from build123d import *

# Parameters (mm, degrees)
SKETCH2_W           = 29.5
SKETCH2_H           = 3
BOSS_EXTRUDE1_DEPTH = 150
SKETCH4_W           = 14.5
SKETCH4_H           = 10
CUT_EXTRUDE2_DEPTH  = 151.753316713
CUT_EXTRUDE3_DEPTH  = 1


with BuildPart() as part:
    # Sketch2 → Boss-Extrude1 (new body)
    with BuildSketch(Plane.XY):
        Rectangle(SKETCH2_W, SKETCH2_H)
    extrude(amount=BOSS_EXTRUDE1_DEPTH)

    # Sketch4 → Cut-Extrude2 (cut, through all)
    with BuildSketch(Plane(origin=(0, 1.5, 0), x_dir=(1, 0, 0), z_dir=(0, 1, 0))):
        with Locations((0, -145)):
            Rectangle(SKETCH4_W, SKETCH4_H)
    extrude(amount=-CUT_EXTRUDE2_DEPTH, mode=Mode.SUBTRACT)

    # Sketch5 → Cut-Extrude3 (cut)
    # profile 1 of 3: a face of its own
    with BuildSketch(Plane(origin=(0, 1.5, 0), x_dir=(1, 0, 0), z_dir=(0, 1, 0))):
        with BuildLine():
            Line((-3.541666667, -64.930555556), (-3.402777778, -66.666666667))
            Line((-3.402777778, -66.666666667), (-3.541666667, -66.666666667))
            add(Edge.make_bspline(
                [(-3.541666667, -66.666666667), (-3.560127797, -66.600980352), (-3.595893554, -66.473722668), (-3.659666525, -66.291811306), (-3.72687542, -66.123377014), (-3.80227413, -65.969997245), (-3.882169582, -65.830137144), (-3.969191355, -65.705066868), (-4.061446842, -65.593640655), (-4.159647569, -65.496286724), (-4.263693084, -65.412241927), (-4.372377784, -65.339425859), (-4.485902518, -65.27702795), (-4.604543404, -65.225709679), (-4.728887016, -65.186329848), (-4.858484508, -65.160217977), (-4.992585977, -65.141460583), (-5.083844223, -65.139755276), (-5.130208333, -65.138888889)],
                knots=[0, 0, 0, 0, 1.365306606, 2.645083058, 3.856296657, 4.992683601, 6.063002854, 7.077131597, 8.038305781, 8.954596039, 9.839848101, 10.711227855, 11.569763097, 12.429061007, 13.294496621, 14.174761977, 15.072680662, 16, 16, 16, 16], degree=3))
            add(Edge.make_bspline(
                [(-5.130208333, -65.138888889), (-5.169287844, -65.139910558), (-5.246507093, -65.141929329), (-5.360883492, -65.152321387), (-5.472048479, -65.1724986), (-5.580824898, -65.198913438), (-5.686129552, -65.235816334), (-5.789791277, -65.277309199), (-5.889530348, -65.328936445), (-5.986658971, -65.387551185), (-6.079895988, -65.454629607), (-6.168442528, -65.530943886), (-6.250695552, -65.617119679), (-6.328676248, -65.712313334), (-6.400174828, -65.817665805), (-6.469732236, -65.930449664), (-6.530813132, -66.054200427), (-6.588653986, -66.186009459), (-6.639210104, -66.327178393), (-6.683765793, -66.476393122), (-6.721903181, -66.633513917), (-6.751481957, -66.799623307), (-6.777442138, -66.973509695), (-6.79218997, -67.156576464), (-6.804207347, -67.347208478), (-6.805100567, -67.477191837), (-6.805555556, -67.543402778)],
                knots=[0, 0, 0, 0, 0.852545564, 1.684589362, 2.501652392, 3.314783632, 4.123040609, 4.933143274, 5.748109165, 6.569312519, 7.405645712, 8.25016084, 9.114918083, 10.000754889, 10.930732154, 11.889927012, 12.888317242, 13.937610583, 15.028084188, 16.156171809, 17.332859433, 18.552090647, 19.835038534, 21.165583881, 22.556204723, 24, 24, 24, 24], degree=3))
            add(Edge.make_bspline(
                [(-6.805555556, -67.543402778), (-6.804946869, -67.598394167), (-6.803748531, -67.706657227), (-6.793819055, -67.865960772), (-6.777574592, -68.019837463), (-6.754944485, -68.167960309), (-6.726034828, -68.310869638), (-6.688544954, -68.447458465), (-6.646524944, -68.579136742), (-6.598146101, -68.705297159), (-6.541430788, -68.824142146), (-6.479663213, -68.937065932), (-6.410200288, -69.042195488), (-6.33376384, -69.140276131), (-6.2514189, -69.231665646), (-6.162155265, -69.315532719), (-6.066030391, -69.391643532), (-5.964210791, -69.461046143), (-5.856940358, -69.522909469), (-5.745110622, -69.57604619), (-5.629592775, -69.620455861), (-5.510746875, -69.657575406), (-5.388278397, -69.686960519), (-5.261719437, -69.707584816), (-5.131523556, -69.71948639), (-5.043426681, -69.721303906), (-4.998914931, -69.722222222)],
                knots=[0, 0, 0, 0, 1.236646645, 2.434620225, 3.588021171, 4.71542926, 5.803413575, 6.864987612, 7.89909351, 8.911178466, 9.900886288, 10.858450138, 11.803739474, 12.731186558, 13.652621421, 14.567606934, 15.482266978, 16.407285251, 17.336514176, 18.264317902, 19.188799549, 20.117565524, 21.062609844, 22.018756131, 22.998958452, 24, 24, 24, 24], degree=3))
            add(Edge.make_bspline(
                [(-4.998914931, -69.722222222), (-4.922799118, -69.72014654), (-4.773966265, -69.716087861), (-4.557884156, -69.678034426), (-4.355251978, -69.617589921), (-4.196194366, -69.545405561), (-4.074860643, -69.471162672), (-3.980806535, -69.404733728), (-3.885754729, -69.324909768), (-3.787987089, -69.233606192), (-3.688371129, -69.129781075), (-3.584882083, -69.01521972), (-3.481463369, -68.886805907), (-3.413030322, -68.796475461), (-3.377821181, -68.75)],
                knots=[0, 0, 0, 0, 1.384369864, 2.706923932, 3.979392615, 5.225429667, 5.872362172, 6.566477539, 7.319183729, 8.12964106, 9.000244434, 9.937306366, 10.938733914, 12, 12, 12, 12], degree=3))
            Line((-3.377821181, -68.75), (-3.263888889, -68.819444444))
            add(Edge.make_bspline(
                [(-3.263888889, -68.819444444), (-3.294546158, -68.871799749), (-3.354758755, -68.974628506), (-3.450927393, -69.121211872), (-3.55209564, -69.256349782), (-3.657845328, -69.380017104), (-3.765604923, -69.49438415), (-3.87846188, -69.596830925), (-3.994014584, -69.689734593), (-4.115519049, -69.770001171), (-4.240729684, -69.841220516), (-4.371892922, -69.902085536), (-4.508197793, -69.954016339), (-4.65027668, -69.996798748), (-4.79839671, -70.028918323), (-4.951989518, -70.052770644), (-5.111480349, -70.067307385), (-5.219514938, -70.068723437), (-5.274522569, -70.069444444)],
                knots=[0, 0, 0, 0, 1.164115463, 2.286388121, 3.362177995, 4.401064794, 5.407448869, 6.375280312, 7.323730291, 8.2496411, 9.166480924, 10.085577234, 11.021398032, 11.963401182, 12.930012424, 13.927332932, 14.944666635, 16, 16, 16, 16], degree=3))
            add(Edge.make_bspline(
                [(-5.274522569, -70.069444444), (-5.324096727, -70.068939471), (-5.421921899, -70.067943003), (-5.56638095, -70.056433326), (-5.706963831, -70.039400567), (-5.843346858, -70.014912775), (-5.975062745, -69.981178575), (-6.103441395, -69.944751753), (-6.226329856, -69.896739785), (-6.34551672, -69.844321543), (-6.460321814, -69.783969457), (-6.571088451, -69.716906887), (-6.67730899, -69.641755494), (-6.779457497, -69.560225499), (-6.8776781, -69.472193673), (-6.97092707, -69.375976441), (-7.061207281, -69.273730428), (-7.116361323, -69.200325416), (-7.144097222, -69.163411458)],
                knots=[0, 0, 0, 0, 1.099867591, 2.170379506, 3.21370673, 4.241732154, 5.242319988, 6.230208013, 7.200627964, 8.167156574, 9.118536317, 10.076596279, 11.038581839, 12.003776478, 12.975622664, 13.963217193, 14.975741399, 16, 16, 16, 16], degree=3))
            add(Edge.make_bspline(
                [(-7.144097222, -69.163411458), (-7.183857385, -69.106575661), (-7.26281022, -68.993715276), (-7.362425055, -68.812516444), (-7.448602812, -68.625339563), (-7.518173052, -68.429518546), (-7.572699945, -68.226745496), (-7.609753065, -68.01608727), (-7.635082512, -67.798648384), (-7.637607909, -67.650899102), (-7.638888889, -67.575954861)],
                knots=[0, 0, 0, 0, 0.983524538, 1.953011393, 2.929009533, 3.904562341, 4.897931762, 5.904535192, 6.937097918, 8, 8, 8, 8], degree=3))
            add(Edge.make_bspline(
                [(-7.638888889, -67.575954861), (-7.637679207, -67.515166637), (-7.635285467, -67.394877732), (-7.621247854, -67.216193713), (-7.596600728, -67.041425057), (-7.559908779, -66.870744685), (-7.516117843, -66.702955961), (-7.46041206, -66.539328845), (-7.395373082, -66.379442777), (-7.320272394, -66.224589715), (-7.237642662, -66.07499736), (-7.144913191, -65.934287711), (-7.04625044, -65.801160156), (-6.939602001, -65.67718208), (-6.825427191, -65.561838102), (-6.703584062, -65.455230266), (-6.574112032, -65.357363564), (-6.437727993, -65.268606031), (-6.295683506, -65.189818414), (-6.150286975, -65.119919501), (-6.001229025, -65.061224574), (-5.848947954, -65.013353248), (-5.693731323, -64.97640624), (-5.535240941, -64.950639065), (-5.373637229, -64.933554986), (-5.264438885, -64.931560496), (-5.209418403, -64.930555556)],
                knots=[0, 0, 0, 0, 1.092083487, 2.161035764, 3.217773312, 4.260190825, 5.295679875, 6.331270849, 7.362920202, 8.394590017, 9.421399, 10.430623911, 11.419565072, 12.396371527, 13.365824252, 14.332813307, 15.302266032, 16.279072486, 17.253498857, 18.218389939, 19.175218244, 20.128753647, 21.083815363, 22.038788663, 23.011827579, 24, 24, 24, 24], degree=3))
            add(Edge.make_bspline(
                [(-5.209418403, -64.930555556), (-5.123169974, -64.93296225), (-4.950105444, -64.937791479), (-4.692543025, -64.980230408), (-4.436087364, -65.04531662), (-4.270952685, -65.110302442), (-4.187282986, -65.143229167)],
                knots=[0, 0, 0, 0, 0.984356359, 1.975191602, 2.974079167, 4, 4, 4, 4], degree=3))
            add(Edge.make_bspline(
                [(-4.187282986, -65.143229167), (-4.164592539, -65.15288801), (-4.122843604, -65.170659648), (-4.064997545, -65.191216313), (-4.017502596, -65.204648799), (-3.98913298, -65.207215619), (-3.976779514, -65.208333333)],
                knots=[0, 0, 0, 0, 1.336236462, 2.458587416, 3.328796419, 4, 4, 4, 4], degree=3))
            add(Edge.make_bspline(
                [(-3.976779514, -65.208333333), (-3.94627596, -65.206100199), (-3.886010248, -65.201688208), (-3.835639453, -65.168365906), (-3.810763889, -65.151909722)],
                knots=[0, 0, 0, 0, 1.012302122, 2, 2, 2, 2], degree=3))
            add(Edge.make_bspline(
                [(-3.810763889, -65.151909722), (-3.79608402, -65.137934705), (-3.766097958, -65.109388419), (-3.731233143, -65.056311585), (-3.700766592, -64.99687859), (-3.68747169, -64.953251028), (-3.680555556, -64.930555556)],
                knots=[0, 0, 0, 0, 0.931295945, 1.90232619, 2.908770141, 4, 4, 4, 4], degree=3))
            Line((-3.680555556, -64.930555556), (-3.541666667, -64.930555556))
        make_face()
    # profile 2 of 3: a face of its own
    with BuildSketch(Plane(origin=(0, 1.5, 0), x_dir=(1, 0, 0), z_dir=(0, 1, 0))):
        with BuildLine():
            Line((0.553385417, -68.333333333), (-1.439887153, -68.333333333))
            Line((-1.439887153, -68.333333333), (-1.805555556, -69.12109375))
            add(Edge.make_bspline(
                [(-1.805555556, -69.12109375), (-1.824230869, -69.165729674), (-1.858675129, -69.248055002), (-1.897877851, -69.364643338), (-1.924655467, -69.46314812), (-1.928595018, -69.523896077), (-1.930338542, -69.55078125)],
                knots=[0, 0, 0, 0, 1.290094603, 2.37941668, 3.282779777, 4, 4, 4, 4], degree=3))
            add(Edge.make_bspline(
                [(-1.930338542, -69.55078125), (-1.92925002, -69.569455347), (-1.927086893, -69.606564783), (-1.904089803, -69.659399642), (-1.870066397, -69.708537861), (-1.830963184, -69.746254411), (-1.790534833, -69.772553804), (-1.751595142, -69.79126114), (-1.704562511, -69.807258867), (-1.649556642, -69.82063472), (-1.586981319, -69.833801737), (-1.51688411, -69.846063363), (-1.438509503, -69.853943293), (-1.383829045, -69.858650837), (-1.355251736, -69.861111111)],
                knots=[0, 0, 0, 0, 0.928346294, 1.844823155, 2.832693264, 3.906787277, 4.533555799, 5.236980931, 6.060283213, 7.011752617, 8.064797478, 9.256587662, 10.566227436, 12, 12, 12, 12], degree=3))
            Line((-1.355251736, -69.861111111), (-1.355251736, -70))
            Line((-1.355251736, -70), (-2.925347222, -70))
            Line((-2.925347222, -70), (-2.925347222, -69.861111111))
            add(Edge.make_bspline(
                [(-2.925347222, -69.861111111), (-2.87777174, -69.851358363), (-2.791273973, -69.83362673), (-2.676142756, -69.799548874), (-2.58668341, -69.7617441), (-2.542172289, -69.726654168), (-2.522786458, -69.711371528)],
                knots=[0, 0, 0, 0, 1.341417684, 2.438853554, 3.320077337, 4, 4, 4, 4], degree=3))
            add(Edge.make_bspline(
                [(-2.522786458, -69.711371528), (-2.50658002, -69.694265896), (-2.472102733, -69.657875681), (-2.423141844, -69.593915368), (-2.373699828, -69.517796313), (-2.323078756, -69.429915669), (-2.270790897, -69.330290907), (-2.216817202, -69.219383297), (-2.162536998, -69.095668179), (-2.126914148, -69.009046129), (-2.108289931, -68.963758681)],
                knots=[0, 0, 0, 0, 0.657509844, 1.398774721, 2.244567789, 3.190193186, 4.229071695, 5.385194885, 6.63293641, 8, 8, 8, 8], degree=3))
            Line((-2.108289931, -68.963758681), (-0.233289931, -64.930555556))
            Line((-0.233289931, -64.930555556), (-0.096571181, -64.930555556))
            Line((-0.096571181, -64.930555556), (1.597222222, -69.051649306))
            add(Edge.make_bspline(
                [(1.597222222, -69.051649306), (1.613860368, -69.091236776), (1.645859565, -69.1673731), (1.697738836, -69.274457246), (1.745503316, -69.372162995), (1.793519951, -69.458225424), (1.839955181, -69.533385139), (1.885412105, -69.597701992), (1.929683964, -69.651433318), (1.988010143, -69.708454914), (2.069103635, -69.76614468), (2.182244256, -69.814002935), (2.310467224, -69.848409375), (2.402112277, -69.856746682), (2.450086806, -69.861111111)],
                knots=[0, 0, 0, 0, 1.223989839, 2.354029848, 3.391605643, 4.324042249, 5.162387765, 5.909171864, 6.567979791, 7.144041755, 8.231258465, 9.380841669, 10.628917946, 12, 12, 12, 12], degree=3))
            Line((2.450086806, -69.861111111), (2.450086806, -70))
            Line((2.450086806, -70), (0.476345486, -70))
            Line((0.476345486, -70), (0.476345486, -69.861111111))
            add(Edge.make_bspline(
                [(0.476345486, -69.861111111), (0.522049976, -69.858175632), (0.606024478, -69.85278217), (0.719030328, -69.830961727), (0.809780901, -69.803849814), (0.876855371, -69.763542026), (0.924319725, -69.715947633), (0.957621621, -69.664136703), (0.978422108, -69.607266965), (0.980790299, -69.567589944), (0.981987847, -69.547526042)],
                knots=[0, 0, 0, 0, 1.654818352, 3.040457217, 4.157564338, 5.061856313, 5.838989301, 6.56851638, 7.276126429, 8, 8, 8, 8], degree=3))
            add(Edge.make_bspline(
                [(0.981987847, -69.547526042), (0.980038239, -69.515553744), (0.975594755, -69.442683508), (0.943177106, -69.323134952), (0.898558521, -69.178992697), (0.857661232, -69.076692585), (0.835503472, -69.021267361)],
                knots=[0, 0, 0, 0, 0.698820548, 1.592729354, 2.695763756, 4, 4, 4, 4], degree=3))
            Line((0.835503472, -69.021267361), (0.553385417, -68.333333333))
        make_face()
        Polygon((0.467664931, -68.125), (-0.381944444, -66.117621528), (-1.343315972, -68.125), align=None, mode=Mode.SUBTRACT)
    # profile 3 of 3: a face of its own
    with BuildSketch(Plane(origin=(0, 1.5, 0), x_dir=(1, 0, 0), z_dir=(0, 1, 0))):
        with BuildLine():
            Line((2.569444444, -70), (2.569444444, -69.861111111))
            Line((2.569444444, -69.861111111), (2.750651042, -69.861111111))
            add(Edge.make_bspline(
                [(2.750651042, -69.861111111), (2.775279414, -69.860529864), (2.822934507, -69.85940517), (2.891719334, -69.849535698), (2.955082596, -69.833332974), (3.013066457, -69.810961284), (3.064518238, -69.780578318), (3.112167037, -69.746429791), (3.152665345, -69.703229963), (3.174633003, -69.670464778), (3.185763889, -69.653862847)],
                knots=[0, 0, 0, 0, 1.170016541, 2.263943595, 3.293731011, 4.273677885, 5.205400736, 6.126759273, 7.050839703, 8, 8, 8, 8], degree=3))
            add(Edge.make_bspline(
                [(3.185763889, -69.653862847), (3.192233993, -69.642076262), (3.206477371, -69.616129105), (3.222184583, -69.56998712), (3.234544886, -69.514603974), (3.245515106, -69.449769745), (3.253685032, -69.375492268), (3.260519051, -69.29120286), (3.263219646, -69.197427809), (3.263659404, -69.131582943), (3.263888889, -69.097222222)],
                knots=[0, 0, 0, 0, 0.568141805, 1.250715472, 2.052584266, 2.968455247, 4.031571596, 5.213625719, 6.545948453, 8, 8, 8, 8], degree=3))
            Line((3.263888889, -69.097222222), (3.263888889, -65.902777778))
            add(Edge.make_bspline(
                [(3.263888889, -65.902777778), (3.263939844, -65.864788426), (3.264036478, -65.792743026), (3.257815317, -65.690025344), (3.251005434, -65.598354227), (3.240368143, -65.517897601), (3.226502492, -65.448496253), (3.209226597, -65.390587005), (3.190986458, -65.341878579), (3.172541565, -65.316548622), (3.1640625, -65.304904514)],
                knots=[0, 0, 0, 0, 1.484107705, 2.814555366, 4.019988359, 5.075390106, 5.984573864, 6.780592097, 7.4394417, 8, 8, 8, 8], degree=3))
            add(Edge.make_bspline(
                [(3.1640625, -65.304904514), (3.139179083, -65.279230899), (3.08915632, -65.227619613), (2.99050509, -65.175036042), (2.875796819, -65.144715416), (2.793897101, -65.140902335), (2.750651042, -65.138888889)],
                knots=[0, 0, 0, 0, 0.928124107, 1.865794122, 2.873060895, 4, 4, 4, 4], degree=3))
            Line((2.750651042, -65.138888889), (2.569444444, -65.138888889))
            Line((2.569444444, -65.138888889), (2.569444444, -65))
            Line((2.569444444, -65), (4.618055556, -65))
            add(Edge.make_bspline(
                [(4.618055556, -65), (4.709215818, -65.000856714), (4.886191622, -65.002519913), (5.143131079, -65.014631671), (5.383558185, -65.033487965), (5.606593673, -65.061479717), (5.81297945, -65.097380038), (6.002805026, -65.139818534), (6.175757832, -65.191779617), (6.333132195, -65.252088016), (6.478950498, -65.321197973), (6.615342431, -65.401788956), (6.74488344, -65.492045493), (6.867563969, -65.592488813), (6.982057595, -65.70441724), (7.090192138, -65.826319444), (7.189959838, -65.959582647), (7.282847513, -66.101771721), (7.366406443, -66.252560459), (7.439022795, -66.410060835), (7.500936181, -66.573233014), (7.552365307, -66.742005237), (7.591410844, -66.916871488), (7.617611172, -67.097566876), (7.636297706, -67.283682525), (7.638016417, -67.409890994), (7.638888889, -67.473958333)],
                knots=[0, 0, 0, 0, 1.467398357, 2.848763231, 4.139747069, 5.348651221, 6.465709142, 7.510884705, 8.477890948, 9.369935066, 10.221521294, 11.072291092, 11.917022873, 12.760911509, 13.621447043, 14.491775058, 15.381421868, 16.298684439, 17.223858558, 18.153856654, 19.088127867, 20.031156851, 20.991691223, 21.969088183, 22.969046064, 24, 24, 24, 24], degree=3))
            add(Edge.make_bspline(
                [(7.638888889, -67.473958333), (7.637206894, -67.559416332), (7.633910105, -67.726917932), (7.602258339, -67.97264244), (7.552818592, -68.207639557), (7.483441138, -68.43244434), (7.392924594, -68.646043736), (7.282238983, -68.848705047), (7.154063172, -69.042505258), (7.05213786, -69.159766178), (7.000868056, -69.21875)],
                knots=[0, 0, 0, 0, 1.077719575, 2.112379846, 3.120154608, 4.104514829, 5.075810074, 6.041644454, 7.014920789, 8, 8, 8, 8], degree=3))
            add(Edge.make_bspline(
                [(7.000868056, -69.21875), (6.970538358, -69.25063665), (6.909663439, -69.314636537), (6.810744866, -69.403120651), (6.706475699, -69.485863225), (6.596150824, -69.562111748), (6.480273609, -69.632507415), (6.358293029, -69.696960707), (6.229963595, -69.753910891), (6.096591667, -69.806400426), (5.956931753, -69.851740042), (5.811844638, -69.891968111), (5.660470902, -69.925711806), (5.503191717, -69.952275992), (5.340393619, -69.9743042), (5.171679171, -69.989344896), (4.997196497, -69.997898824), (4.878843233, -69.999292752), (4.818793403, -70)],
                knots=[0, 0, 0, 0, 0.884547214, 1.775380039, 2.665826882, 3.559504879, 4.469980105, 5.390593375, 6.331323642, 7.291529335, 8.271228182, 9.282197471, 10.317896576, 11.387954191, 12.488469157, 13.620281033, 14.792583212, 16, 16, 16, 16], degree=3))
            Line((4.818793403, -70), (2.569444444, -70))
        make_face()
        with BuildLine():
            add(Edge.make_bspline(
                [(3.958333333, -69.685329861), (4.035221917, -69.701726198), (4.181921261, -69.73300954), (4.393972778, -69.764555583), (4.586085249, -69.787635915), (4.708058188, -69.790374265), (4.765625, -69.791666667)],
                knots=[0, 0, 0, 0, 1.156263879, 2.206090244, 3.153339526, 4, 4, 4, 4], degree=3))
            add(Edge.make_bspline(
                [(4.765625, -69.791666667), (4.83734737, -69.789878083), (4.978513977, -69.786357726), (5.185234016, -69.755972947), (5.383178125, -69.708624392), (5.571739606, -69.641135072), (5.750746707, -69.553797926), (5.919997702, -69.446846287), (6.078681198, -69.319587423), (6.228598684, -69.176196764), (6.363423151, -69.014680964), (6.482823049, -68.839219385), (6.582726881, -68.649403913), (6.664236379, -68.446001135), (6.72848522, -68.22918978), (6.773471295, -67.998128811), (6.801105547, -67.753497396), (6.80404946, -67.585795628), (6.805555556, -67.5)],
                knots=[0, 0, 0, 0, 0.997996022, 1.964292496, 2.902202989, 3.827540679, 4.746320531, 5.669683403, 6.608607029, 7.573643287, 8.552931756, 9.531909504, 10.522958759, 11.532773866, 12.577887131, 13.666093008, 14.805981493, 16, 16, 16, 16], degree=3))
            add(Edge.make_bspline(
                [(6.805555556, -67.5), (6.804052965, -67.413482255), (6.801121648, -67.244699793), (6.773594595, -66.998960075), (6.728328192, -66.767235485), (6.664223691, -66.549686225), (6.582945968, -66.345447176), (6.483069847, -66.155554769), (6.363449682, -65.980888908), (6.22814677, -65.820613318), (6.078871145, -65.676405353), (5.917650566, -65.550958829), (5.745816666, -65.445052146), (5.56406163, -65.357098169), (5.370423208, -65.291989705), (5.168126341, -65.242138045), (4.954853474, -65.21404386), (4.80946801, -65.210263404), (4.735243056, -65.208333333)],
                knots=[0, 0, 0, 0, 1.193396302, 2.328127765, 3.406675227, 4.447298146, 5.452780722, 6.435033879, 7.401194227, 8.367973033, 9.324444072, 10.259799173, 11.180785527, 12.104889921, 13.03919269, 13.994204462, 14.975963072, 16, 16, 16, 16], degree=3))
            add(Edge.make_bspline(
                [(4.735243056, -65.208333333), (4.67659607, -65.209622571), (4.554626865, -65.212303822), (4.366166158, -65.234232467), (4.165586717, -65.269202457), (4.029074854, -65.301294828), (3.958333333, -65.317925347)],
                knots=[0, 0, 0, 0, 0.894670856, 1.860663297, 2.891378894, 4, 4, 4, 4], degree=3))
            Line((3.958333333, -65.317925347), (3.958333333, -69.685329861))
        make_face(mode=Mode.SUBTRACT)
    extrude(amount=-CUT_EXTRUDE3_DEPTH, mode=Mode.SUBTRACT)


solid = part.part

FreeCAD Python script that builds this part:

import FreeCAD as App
import Part
import Sketcher
from FreeCAD import Vector
Q = App.Units.Quantity

doc = App.newDocument("Part")
body = doc.addObject("PartDesign::Body", "Body")

# Sketch on XY plane
sketch1 = body.newObject("Sketcher::SketchObject", "Sketch")
sketch1.AttachmentSupport = (doc.getObject("XY_Plane"), [""])
sketch1.MapMode = "FlatFace"
sketch1.addGeometry([
    Part.LineSegment(Vector(-14.75, 1.5, 0), Vector(-14.75, -1.5, 0)),
    Part.LineSegment(Vector(-14.75, -1.5, 0), Vector(14.75, -1.5, 0)),
    Part.LineSegment(Vector(14.75, -1.5, 0), Vector(14.75, 1.5, 0)),
    Part.LineSegment(Vector(14.75, 1.5, 0), Vector(-14.75, 1.5, 0)),
], False)
sketch1.addConstraint([
    Sketcher.Constraint("Coincident", 0, 2, 1, 1),
    Sketcher.Constraint("Coincident", 1, 2, 2, 1),
    Sketcher.Constraint("Coincident", 2, 2, 3, 1),
    Sketcher.Constraint("Coincident", 3, 2, 0, 1),
    Sketcher.Constraint("Vertical", 0),
    Sketcher.Constraint("Horizontal", 1),
    Sketcher.Constraint("Vertical", 2),
    Sketcher.Constraint("Horizontal", 3),
    Sketcher.Constraint("Symmetric", 0, 2, 2, 2, -1, 1),
    Sketcher.Constraint("DistanceY", 0, 2, 0, 1, Q("3 mm")),
    Sketcher.Constraint("DistanceX", 1, 1, 1, 2, Q("29.5 mm")),
])
pad1 = body.newObject("PartDesign::Pad", "Pad")
pad1.Profile = sketch1
pad1.Length = 150

# Sketch on XZ plane
sketch2 = body.newObject("Sketcher::SketchObject", "Sketch001")
sketch2.AttachmentSupport = (doc.getObject("XZ_Plane"), [""])
sketch2.MapMode = "FlatFace"
sketch2.AttachmentOffset = App.Placement(Vector(0, 0, -1.5), App.Rotation())
sketch2.addGeometry([
    Part.LineSegment(Vector(-7.25, 140, 0), Vector(-7.25, 150, 0)),
    Part.LineSegment(Vector(-7.25, 150, 0), Vector(7.25, 150, 0)),
    Part.LineSegment(Vector(7.25, 150, 0), Vector(7.25, 140, 0)),
    Part.LineSegment(Vector(7.25, 140, 0), Vector(-7.25, 140, 0)),
], False)
sketch2.addConstraint([
    Sketcher.Constraint("Coincident", 0, 2, 1, 1),
    Sketcher.Constraint("Coincident", 1, 2, 2, 1),
    Sketcher.Constraint("Coincident", 2, 2, 3, 1),
    Sketcher.Constraint("Coincident", 3, 2, 0, 1),
    Sketcher.Constraint("Vertical", 0),
    Sketcher.Constraint("Horizontal", 1),
    Sketcher.Constraint("Vertical", 2),
    Sketcher.Constraint("Horizontal", 3),
    Sketcher.Constraint("DistanceY", 0, 1, 0, 2, Q("10 mm")),
    Sketcher.Constraint("DistanceX", 1, 1, 1, 2, Q("14.5 mm")),
    Sketcher.Constraint("DistanceY", -1, 1, 0, 2, Q("150 mm")),
    Sketcher.Constraint("DistanceX", 0, 2, -1, 1, Q("7.25 mm")),
])
pocket1 = body.newObject("PartDesign::Pocket", "Pocket")
pocket1.Profile = sketch2
pocket1.Type = "ThroughAll"
pocket1.Reversed = True

# Sketch on XZ plane
sketch3 = body.newObject("Sketcher::SketchObject", "Sketch002")
sketch3.AttachmentSupport = (doc.getObject("XZ_Plane"), [""])
sketch3.MapMode = "FlatFace"
sketch3.AttachmentOffset = App.Placement(Vector(0, 0, -1.5), App.Rotation())
sketch3.addGeometry([
    Part.LineSegment(Vector(-3.402778, 66.666667, 0), Vector(-3.541667, 64.930556, 0)),  # 0
    Part.LineSegment(Vector(-3.541667, 64.930556, 0), Vector(-3.680556, 64.930556, 0)),  # 1
    Part.BSplineCurve([Vector(-3.810764, 65.15191, 0), Vector(-3.796084, 65.137935, 0), Vector(-3.766098, 65.109388, 0), Vector(-3.731233, 65.056312, 0), Vector(-3.700767, 64.996879, 0), Vector(-3.687472, 64.953251, 0), Vector(-3.680556, 64.930556, 0)], [4, 1, 1, 1, 4], [0, 0.931295945, 1.90232619, 2.908770141, 4], False, 3, [1, 1, 1, 1, 1, 1, 1], False),  # 2
    Part.BSplineCurve([Vector(-3.97678, 65.208333, 0), Vector(-3.946276, 65.2061, 0), Vector(-3.88601, 65.201688, 0), Vector(-3.835639, 65.168366, 0), Vector(-3.810764, 65.15191, 0)], [4, 1, 4], [0, 1.012302122, 2], False, 3, [1, 1, 1, 1, 1], False),  # 3
    Part.BSplineCurve([Vector(-4.187283, 65.143229, 0), Vector(-4.164593, 65.152888, 0), Vector(-4.122844, 65.17066, 0), Vector(-4.064998, 65.191216, 0), Vector(-4.017503, 65.204649, 0), Vector(-3.989133, 65.207216, 0), Vector(-3.97678, 65.208333, 0)], [4, 1, 1, 1, 4], [0, 1.336236462, 2.458587416, 3.328796419, 4], False, 3, [1, 1, 1, 1, 1, 1, 1], False),  # 4
    Part.BSplineCurve([Vector(-5.209418, 64.930556, 0), Vector(-5.12317, 64.932962, 0), Vector(-4.950105, 64.937791, 0), Vector(-4.692543, 64.98023, 0), Vector(-4.436087, 65.045317, 0), Vector(-4.270953, 65.110302, 0), Vector(-4.187283, 65.143229, 0)], [4, 1, 1, 1, 4], [0, 0.984356359, 1.975191602, 2.974079167, 4], False, 3, [1, 1, 1, 1, 1, 1, 1], False),  # 5
    Part.BSplineCurve([Vector(-7.638889, 67.575955, 0), Vector(-7.637679, 67.515167, 0), Vector(-7.635285, 67.394878, 0), Vector(-7.621248, 67.216194, 0), Vector(-7.596601, 67.041425, 0), Vector(-7.559909, 66.870745, 0), Vector(-7.516118, 66.702956, 0), Vector(-7.460412, 66.539329, 0), Vector(-7.395373, 66.379443, 0), Vector(-7.320272, 66.22459, 0), Vector(-7.237643, 66.074997, 0), Vector(-7.144913, 65.934288, 0), Vector(-7.04625, 65.80116, 0), Vector(-6.939602, 65.677182, 0), Vector(-6.825427, 65.561838, 0), Vector(-6.703584, 65.45523, 0), Vector(-6.574112, 65.357364, 0), Vector(-6.437728, 65.268606, 0), Vector(-6.295684, 65.189818, 0), Vector(-6.150287, 65.11992, 0), Vector(-6.001229, 65.061225, 0), Vector(-5.848948, 65.013353, 0), Vector(-5.693731, 64.976406, 0), Vector(-5.535241, 64.950639, 0), Vector(-5.373637, 64.933555, 0), Vector(-5.264439, 64.93156, 0), Vector(-5.209418, 64.930556, 0)], [4, 1, 1, 1, 1, 1, 1, 1, 1, 1, 1, 1, 1, 1, 1, 1, 1, 1, 1, 1, 1, 1, 1, 1, 4], [0, 1.092083487, 2.161035764, 3.217773312, 4.260190825, 5.295679875, 6.331270849, 7.362920202, 8.394590017, 9.421399, 10.430623911, 11.419565072, 12.396371527, 13.365824252, 14.332813307, 15.302266032, 16.279072486, 17.253498857, 18.218389939, 19.175218244, 20.128753647, 21.083815363, 22.038788663, 23.011827579, 24], False, 3, [1, 1, 1, 1, 1, 1, 1, 1, 1, 1, 1, 1, 1, 1, 1, 1, 1, 1, 1, 1, 1, 1, 1, 1, 1, 1, 1], False),  # 6
    Part.BSplineCurve([Vector(-7.144097, 69.163411, 0), Vector(-7.183857, 69.106576, 0), Vector(-7.26281, 68.993715, 0), Vector(-7.362425, 68.812516, 0), Vector(-7.448603, 68.62534, 0), Vector(-7.518173, 68.429519, 0), Vector(-7.5727, 68.226745, 0), Vector(-7.609753, 68.016087, 0), Vector(-7.635083, 67.798648, 0), Vector(-7.637608, 67.650899, 0), Vector(-7.638889, 67.575955, 0)], [4, 1, 1, 1, 1, 1, 1, 1, 4], [0, 0.983524538, 1.953011393, 2.929009533, 3.904562341, 4.897931762, 5.904535192, 6.937097918, 8], False, 3, [1, 1, 1, 1, 1, 1, 1, 1, 1, 1, 1], False),  # 7
    Part.BSplineCurve([Vector(-5.274523, 70.069444, 0), Vector(-5.324097, 70.068939, 0), Vector(-5.421922, 70.067943, 0), Vector(-5.566381, 70.056433, 0), Vector(-5.706964, 70.039401, 0), Vector(-5.843347, 70.014913, 0), Vector(-5.975063, 69.981179, 0), Vector(-6.103441, 69.944752, 0), Vector(-6.22633, 69.89674, 0), Vector(-6.345517, 69.844322, 0), Vector(-6.460322, 69.783969, 0), Vector(-6.571088, 69.716907, 0), Vector(-6.677309, 69.641755, 0), Vector(-6.779457, 69.560225, 0), Vector(-6.877678, 69.472194, 0), Vector(-6.970927, 69.375976, 0), Vector(-7.061207, 69.27373, 0), Vector(-7.116361, 69.200325, 0), Vector(-7.144097, 69.163411, 0)], [4, 1, 1, 1, 1, 1, 1, 1, 1, 1, 1, 1, 1, 1, 1, 1, 4], [0, 1.099867591, 2.170379506, 3.21370673, 4.241732154, 5.242319988, 6.230208013, 7.200627964, 8.167156574, 9.118536317, 10.076596279, 11.038581839, 12.003776478, 12.975622664, 13.963217193, 14.975741399, 16], False, 3, [1, 1, 1, 1, 1, 1, 1, 1, 1, 1, 1, 1, 1, 1, 1, 1, 1, 1, 1], False),  # 8
    Part.BSplineCurve([Vector(-3.263889, 68.819444, 0), Vector(-3.294546, 68.8718, 0), Vector(-3.354759, 68.974629, 0), Vector(-3.450927, 69.121212, 0), Vector(-3.552096, 69.25635, 0), Vector(-3.657845, 69.380017, 0), Vector(-3.765605, 69.494384, 0), Vector(-3.878462, 69.596831, 0), Vector(-3.994015, 69.689735, 0), Vector(-4.115519, 69.770001, 0), Vector(-4.24073, 69.841221, 0), Vector(-4.371893, 69.902086, 0), Vector(-4.508198, 69.954016, 0), Vector(-4.650277, 69.996799, 0), Vector(-4.798397, 70.028918, 0), Vector(-4.95199, 70.052771, 0), Vector(-5.11148, 70.067307, 0), Vector(-5.219515, 70.068723, 0), Vector(-5.274523, 70.069444, 0)], [4, 1, 1, 1, 1, 1, 1, 1, 1, 1, 1, 1, 1, 1, 1, 1, 4], [0, 1.164115463, 2.286388121, 3.362177995, 4.401064794, 5.407448869, 6.375280312, 7.323730291, 8.2496411, 9.166480924, 10.085577234, 11.021398032, 11.963401182, 12.930012424, 13.927332932, 14.944666635, 16], False, 3, [1, 1, 1, 1, 1, 1, 1, 1, 1, 1, 1, 1, 1, 1, 1, 1, 1, 1, 1], False),  # 9
    Part.LineSegment(Vector(-3.263889, 68.819444, 0), Vector(-3.377821, 68.75, 0)),  # 10
    Part.BSplineCurve([Vector(-4.998915, 69.722222, 0), Vector(-4.922799, 69.720147, 0), Vector(-4.773966, 69.716088, 0), Vector(-4.557884, 69.678034, 0), Vector(-4.355252, 69.61759, 0), Vector(-4.196194, 69.545406, 0), Vector(-4.074861, 69.471163, 0), Vector(-3.980807, 69.404734, 0), Vector(-3.885755, 69.32491, 0), Vector(-3.787987, 69.233606, 0), Vector(-3.688371, 69.129781, 0), Vector(-3.584882, 69.01522, 0), Vector(-3.481463, 68.886806, 0), Vector(-3.41303, 68.796475, 0), Vector(-3.377821, 68.75, 0)], [4, 1, 1, 1, 1, 1, 1, 1, 1, 1, 1, 1, 4], [0, 1.384369864, 2.706923932, 3.979392615, 5.225429667, 5.872362172, 6.566477539, 7.319183729, 8.12964106, 9.000244434, 9.937306366, 10.938733914, 12], False, 3, [1, 1, 1, 1, 1, 1, 1, 1, 1, 1, 1, 1, 1, 1, 1], False),  # 11
    Part.BSplineCurve([Vector(-6.805556, 67.543403, 0), Vector(-6.804947, 67.598394, 0), Vector(-6.803749, 67.706657, 0), Vector(-6.793819, 67.865961, 0), Vector(-6.777575, 68.019837, 0), Vector(-6.754944, 68.16796, 0), Vector(-6.726035, 68.31087, 0), Vector(-6.688545, 68.447458, 0), Vector(-6.646525, 68.579137, 0), Vector(-6.598146, 68.705297, 0), Vector(-6.541431, 68.824142, 0), Vector(-6.479663, 68.937066, 0), Vector(-6.4102, 69.042195, 0), Vector(-6.333764, 69.140276, 0), Vector(-6.251419, 69.231666, 0), Vector(-6.162155, 69.315533, 0), Vector(-6.06603, 69.391644, 0), Vector(-5.964211, 69.461046, 0), Vector(-5.85694, 69.522909, 0), Vector(-5.745111, 69.576046, 0), Vector(-5.629593, 69.620456, 0), Vector(-5.510747, 69.657575, 0), Vector(-5.388278, 69.686961, 0), Vector(-5.261719, 69.707585, 0), Vector(-5.131524, 69.719486, 0), Vector(-5.043427, 69.721304, 0), Vector(-4.998915, 69.722222, 0)], [4, 1, 1, 1, 1, 1, 1, 1, 1, 1, 1, 1, 1, 1, 1, 1, 1, 1, 1, 1, 1, 1, 1, 1, 4], [0, 1.236646645, 2.434620225, 3.588021171, 4.71542926, 5.803413575, 6.864987612, 7.89909351, 8.911178466, 9.900886288, 10.858450138, 11.803739474, 12.731186558, 13.652621421, 14.567606934, 15.482266978, 16.407285251, 17.336514176, 18.264317902, 19.188799549, 20.117565524, 21.062609844, 22.018756131, 22.998958452, 24], False, 3, [1, 1, 1, 1, 1, 1, 1, 1, 1, 1, 1, 1, 1, 1, 1, 1, 1, 1, 1, 1, 1, 1, 1, 1, 1, 1, 1], False),  # 12
    Part.BSplineCurve([Vector(-5.130208, 65.138889, 0), Vector(-5.169288, 65.139911, 0), Vector(-5.246507, 65.141929, 0), Vector(-5.360883, 65.152321, 0), Vector(-5.472048, 65.172499, 0), Vector(-5.580825, 65.198913, 0), Vector(-5.68613, 65.235816, 0), Vector(-5.789791, 65.277309, 0), Vector(-5.88953, 65.328936, 0), Vector(-5.986659, 65.387551, 0), Vector(-6.079896, 65.45463, 0), Vector(-6.168443, 65.530944, 0), Vector(-6.250696, 65.61712, 0), Vector(-6.328676, 65.712313, 0), Vector(-6.400175, 65.817666, 0), Vector(-6.469732, 65.93045, 0), Vector(-6.530813, 66.0542, 0), Vector(-6.588654, 66.186009, 0), Vector(-6.63921, 66.327178, 0), Vector(-6.683766, 66.476393, 0), Vector(-6.721903, 66.633514, 0), Vector(-6.751482, 66.799623, 0), Vector(-6.777442, 66.97351, 0), Vector(-6.79219, 67.156576, 0), Vector(-6.804207, 67.347208, 0), Vector(-6.805101, 67.477192, 0), Vector(-6.805556, 67.543403, 0)], [4, 1, 1, 1, 1, 1, 1, 1, 1, 1, 1, 1, 1, 1, 1, 1, 1, 1, 1, 1, 1, 1, 1, 1, 4], [0, 0.852545564, 1.684589362, 2.501652392, 3.314783632, 4.123040609, 4.933143274, 5.748109165, 6.569312519, 7.405645712, 8.25016084, 9.114918083, 10.000754889, 10.930732154, 11.889927012, 12.888317242, 13.937610583, 15.028084188, 16.156171809, 17.332859433, 18.552090647, 19.835038534, 21.165583881, 22.556204723, 24], False, 3, [1, 1, 1, 1, 1, 1, 1, 1, 1, 1, 1, 1, 1, 1, 1, 1, 1, 1, 1, 1, 1, 1, 1, 1, 1, 1, 1], False),  # 13
    Part.BSplineCurve([Vector(-3.541667, 66.666667, 0), Vector(-3.560128, 66.60098, 0), Vector(-3.595894, 66.473723, 0), Vector(-3.659667, 66.291811, 0), Vector(-3.726875, 66.123377, 0), Vector(-3.802274, 65.969997, 0), Vector(-3.88217, 65.830137, 0), Vector(-3.969191, 65.705067, 0), Vector(-4.061447, 65.593641, 0), Vector(-4.159648, 65.496287, 0), Vector(-4.263693, 65.412242, 0), Vector(-4.372378, 65.339426, 0), Vector(-4.485903, 65.277028, 0), Vector(-4.604543, 65.22571, 0), Vector(-4.728887, 65.18633, 0), Vector(-4.858485, 65.160218, 0), Vector(-4.992586, 65.141461, 0), Vector(-5.083844, 65.139755, 0), Vector(-5.130208, 65.138889, 0)], [4, 1, 1, 1, 1, 1, 1, 1, 1, 1, 1, 1, 1, 1, 1, 1, 4], [0, 1.365306606, 2.645083058, 3.856296657, 4.992683601, 6.063002854, 7.077131597, 8.038305781, 8.954596039, 9.839848101, 10.711227855, 11.569763097, 12.429061007, 13.294496621, 14.174761977, 15.072680662, 16], False, 3, [1, 1, 1, 1, 1, 1, 1, 1, 1, 1, 1, 1, 1, 1, 1, 1, 1, 1, 1], False),  # 14
    Part.LineSegment(Vector(-3.541667, 66.666667, 0), Vector(-3.402778, 66.666667, 0)),  # 15
    Part.LineSegment(Vector(-1.439887, 68.333333, 0), Vector(0.553385, 68.333333, 0)),  # 16
    Part.LineSegment(Vector(0.553385, 68.333333, 0), Vector(0.835503, 69.021267, 0)),  # 17
    Part.BSplineCurve([Vector(0.981988, 69.547526, 0), Vector(0.980038, 69.515554, 0), Vector(0.975595, 69.442684, 0), Vector(0.943177, 69.323135, 0), Vector(0.898559, 69.178993, 0), Vector(0.857661, 69.076693, 0), Vector(0.835503, 69.021267, 0)], [4, 1, 1, 1, 4], [0, 0.698820548, 1.592729354, 2.695763756, 4], False, 3, [1, 1, 1, 1, 1, 1, 1], False),  # 18
    Part.BSplineCurve([Vector(0.476345, 69.861111, 0), Vector(0.52205, 69.858176, 0), Vector(0.606024, 69.852782, 0), Vector(0.71903, 69.830962, 0), Vector(0.809781, 69.80385, 0), Vector(0.876855, 69.763542, 0), Vector(0.92432, 69.715948, 0), Vector(0.957622, 69.664137, 0), Vector(0.978422, 69.607267, 0), Vector(0.98079, 69.56759, 0), Vector(0.981988, 69.547526, 0)], [4, 1, 1, 1, 1, 1, 1, 1, 4], [0, 1.654818352, 3.040457217, 4.157564338, 5.061856313, 5.838989301, 6.56851638, 7.276126429, 8], False, 3, [1, 1, 1, 1, 1, 1, 1, 1, 1, 1, 1], False),  # 19
    Part.LineSegment(Vector(0.476345, 69.861111, 0), Vector(0.476345, 70, 0)),  # 20
    Part.LineSegment(Vector(0.476345, 70, 0), Vector(2.450087, 70, 0)),  # 21
    Part.LineSegment(Vector(2.450087, 70, 0), Vector(2.450087, 69.861111, 0)),  # 22
    Part.BSplineCurve([Vector(1.597222, 69.051649, 0), Vector(1.61386, 69.091237, 0), Vector(1.64586, 69.167373, 0), Vector(1.697739, 69.274457, 0), Vector(1.745503, 69.372163, 0), Vector(1.79352, 69.458225, 0), Vector(1.839955, 69.533385, 0), Vector(1.885412, 69.597702, 0), Vector(1.929684, 69.651433, 0), Vector(1.98801, 69.708455, 0), Vector(2.069104, 69.766145, 0), Vector(2.182244, 69.814003, 0), Vector(2.310467, 69.848409, 0), Vector(2.402112, 69.856747, 0), Vector(2.450087, 69.861111, 0)], [4, 1, 1, 1, 1, 1, 1, 1, 1, 1, 1, 1, 4], [0, 1.223989839, 2.354029848, 3.391605643, 4.324042249, 5.162387765, 5.909171864, 6.567979791, 7.144041755, 8.231258465, 9.380841669, 10.628917946, 12], False, 3, [1, 1, 1, 1, 1, 1, 1, 1, 1, 1, 1, 1, 1, 1, 1], False),  # 23
    Part.LineSegment(Vector(1.597222, 69.051649, 0), Vector(-0.096571, 64.930556, 0)),  # 24
    Part.LineSegment(Vector(-0.096571, 64.930556, 0), Vector(-0.23329, 64.930556, 0)),  # 25
    Part.LineSegment(Vector(-0.23329, 64.930556, 0), Vector(-2.10829, 68.963759, 0)),  # 26
    Part.BSplineCurve([Vector(-2.522786, 69.711372, 0), Vector(-2.50658, 69.694266, 0), Vector(-2.472103, 69.657876, 0), Vector(-2.423142, 69.593915, 0), Vector(-2.3737, 69.517796, 0), Vector(-2.323079, 69.429916, 0), Vector(-2.270791, 69.330291, 0), Vector(-2.216817, 69.219383, 0), Vector(-2.162537, 69.095668, 0), Vector(-2.126914, 69.009046, 0), Vector(-2.10829, 68.963759, 0)], [4, 1, 1, 1, 1, 1, 1, 1, 4], [0, 0.657509844, 1.398774721, 2.244567789, 3.190193186, 4.229071695, 5.385194885, 6.63293641, 8], False, 3, [1, 1, 1, 1, 1, 1, 1, 1, 1, 1, 1], False),  # 27
    Part.BSplineCurve([Vector(-2.925347, 69.861111, 0), Vector(-2.877772, 69.851358, 0), Vector(-2.791274, 69.833627, 0), Vector(-2.676143, 69.799549, 0), Vector(-2.586683, 69.761744, 0), Vector(-2.542172, 69.726654, 0), Vector(-2.522786, 69.711372, 0)], [4, 1, 1, 1, 4], [0, 1.341417684, 2.438853554, 3.320077337, 4], False, 3, [1, 1, 1, 1, 1, 1, 1], False),  # 28
    Part.LineSegment(Vector(-2.925347, 69.861111, 0), Vector(-2.925347, 70, 0)),  # 29
    Part.LineSegment(Vector(-2.925347, 70, 0), Vector(-1.355252, 70, 0)),  # 30
    Part.LineSegment(Vector(-1.355252, 70, 0), Vector(-1.355252, 69.861111, 0)),  # 31
    Part.BSplineCurve([Vector(-1.930339, 69.550781, 0), Vector(-1.92925, 69.569455, 0), Vector(-1.927087, 69.606565, 0), Vector(-1.90409, 69.6594, 0), Vector(-1.870066, 69.708538, 0), Vector(-1.830963, 69.746254, 0), Vector(-1.790535, 69.772554, 0), Vector(-1.751595, 69.791261, 0), Vector(-1.704563, 69.807259, 0), Vector(-1.649557, 69.820635, 0), Vector(-1.586981, 69.833802, 0), Vector(-1.516884, 69.846063, 0), Vector(-1.43851, 69.853943, 0), Vector(-1.383829, 69.858651, 0), Vector(-1.355252, 69.861111, 0)], [4, 1, 1, 1, 1, 1, 1, 1, 1, 1, 1, 1, 4], [0, 0.928346294, 1.844823155, 2.832693264, 3.906787277, 4.533555799, 5.236980931, 6.060283213, 7.011752617, 8.064797478, 9.256587662, 10.566227436, 12], False, 3, [1, 1, 1, 1, 1, 1, 1, 1, 1, 1, 1, 1, 1, 1, 1], False),  # 32
    Part.BSplineCurve([Vector(-1.805556, 69.121094, 0), Vector(-1.824231, 69.16573, 0), Vector(-1.858675, 69.248055, 0), Vector(-1.897878, 69.364643, 0), Vector(-1.924655, 69.463148, 0), Vector(-1.928595, 69.523896, 0), Vector(-1.930339, 69.550781, 0)], [4, 1, 1, 1, 4], [0, 1.290094603, 2.37941668, 3.282779777, 4], False, 3, [1, 1, 1, 1, 1, 1, 1], False),  # 33
    Part.LineSegment(Vector(-1.805556, 69.121094, 0), Vector(-1.439887, 68.333333, 0)),  # 34
    Part.LineSegment(Vector(0.467665, 68.125, 0), Vector(-1.343316, 68.125, 0)),  # 35
    Part.LineSegment(Vector(-1.343316, 68.125, 0), Vector(-0.381944, 66.117622, 0)),  # 36
    Part.LineSegment(Vector(-0.381944, 66.117622, 0), Vector(0.467665, 68.125, 0)),  # 37
    Part.LineSegment(Vector(2.569444, 69.861111, 0), Vector(2.569444, 70, 0)),  # 38
    Part.LineSegment(Vector(2.569444, 70, 0), Vector(4.818793, 70, 0)),  # 39
    Part.BSplineCurve([Vector(7.000868, 69.21875, 0), Vector(6.970538, 69.250637, 0), Vector(6.909663, 69.314637, 0), Vector(6.810745, 69.403121, 0), Vector(6.706476, 69.485863, 0), Vector(6.596151, 69.562112, 0), Vector(6.480274, 69.632507, 0), Vector(6.358293, 69.696961, 0), Vector(6.229964, 69.753911, 0), Vector(6.096592, 69.8064, 0), Vector(5.956932, 69.85174, 0), Vector(5.811845, 69.891968, 0), Vector(5.660471, 69.925712, 0), Vector(5.503192, 69.952276, 0), Vector(5.340394, 69.974304, 0), Vector(5.171679, 69.989345, 0), Vector(4.997196, 69.997899, 0), Vector(4.878843, 69.999293, 0), Vector(4.818793, 70, 0)], [4, 1, 1, 1, 1, 1, 1, 1, 1, 1, 1, 1, 1, 1, 1, 1, 4], [0, 0.884547214, 1.775380039, 2.665826882, 3.559504879, 4.469980105, 5.390593375, 6.331323642, 7.291529335, 8.271228182, 9.282197471, 10.317896576, 11.387954191, 12.488469157, 13.620281033, 14.792583212, 16], False, 3, [1, 1, 1, 1, 1, 1, 1, 1, 1, 1, 1, 1, 1, 1, 1, 1, 1, 1, 1], False),  # 40
    Part.BSplineCurve([Vector(7.638889, 67.473958, 0), Vector(7.637207, 67.559416, 0), Vector(7.63391, 67.726918, 0), Vector(7.602258, 67.972642, 0), Vector(7.552819, 68.20764, 0), Vector(7.483441, 68.432444, 0), Vector(7.392925, 68.646044, 0), Vector(7.282239, 68.848705, 0), Vector(7.154063, 69.042505, 0), Vector(7.052138, 69.159766, 0), Vector(7.000868, 69.21875, 0)], [4, 1, 1, 1, 1, 1, 1, 1, 4], [0, 1.077719575, 2.112379846, 3.120154608, 4.104514829, 5.075810074, 6.041644454, 7.014920789, 8], False, 3, [1, 1, 1, 1, 1, 1, 1, 1, 1, 1, 1], False),  # 41
    Part.BSplineCurve([Vector(4.618056, 65, 0), Vector(4.709216, 65.000857, 0), Vector(4.886192, 65.00252, 0), Vector(5.143131, 65.014632, 0), Vector(5.383558, 65.033488, 0), Vector(5.606594, 65.06148, 0), Vector(5.812979, 65.09738, 0), Vector(6.002805, 65.139819, 0), Vector(6.175758, 65.19178, 0), Vector(6.333132, 65.252088, 0), Vector(6.47895, 65.321198, 0), Vector(6.615342, 65.401789, 0), Vector(6.744883, 65.492045, 0), Vector(6.867564, 65.592489, 0), Vector(6.982058, 65.704417, 0), Vector(7.090192, 65.826319, 0), Vector(7.18996, 65.959583, 0), Vector(7.282848, 66.101772, 0), Vector(7.366406, 66.25256, 0), Vector(7.439023, 66.410061, 0), Vector(7.500936, 66.573233, 0), Vector(7.552365, 66.742005, 0), Vector(7.591411, 66.916871, 0), Vector(7.617611, 67.097567, 0), Vector(7.636298, 67.283683, 0), Vector(7.638016, 67.409891, 0), Vector(7.638889, 67.473958, 0)], [4, 1, 1, 1, 1, 1, 1, 1, 1, 1, 1, 1, 1, 1, 1, 1, 1, 1, 1, 1, 1, 1, 1, 1, 4], [0, 1.467398357, 2.848763231, 4.139747069, 5.348651221, 6.465709142, 7.510884705, 8.477890948, 9.369935066, 10.221521294, 11.072291092, 11.917022873, 12.760911509, 13.621447043, 14.491775058, 15.381421868, 16.298684439, 17.223858558, 18.153856654, 19.088127867, 20.031156851, 20.991691223, 21.969088183, 22.969046064, 24], False, 3, [1, 1, 1, 1, 1, 1, 1, 1, 1, 1, 1, 1, 1, 1, 1, 1, 1, 1, 1, 1, 1, 1, 1, 1, 1, 1, 1], False),  # 42
    Part.LineSegment(Vector(4.618056, 65, 0), Vector(2.569444, 65, 0)),  # 43
    Part.LineSegment(Vector(2.569444, 65, 0), Vector(2.569444, 65.138889, 0)),  # 44
    Part.LineSegment(Vector(2.569444, 65.138889, 0), Vector(2.750651, 65.138889, 0)),  # 45
    Part.BSplineCurve([Vector(3.164062, 65.304905, 0), Vector(3.139179, 65.279231, 0), Vector(3.089156, 65.22762, 0), Vector(2.990505, 65.175036, 0), Vector(2.875797, 65.144715, 0), Vector(2.793897, 65.140902, 0), Vector(2.750651, 65.138889, 0)], [4, 1, 1, 1, 4], [0, 0.928124107, 1.865794122, 2.873060895, 4], False, 3, [1, 1, 1, 1, 1, 1, 1], False),  # 46
    Part.BSplineCurve([Vector(3.263889, 65.902778, 0), Vector(3.26394, 65.864788, 0), Vector(3.264036, 65.792743, 0), Vector(3.257815, 65.690025, 0), Vector(3.251005, 65.598354, 0), Vector(3.240368, 65.517898, 0), Vector(3.226502, 65.448496, 0), Vector(3.209227, 65.390587, 0), Vector(3.190986, 65.341879, 0), Vector(3.172542, 65.316549, 0), Vector(3.164062, 65.304905, 0)], [4, 1, 1, 1, 1, 1, 1, 1, 4], [0, 1.484107705, 2.814555366, 4.019988359, 5.075390106, 5.984573864, 6.780592097, 7.4394417, 8], False, 3, [1, 1, 1, 1, 1, 1, 1, 1, 1, 1, 1], False),  # 47
    Part.LineSegment(Vector(3.263889, 65.902778, 0), Vector(3.263889, 69.097222, 0)),  # 48
    Part.BSplineCurve([Vector(3.185764, 69.653863, 0), Vector(3.192234, 69.642076, 0), Vector(3.206477, 69.616129, 0), Vector(3.222185, 69.569987, 0), Vector(3.234545, 69.514604, 0), Vector(3.245515, 69.44977, 0), Vector(3.253685, 69.375492, 0), Vector(3.260519, 69.291203, 0), Vector(3.26322, 69.197428, 0), Vector(3.263659, 69.131583, 0), Vector(3.263889, 69.097222, 0)], [4, 1, 1, 1, 1, 1, 1, 1, 4], [0, 0.568141805, 1.250715472, 2.052584266, 2.968455247, 4.031571596, 5.213625719, 6.545948453, 8], False, 3, [1, 1, 1, 1, 1, 1, 1, 1, 1, 1, 1], False),  # 49
    Part.BSplineCurve([Vector(2.750651, 69.861111, 0), Vector(2.775279, 69.86053, 0), Vector(2.822935, 69.859405, 0), Vector(2.891719, 69.849536, 0), Vector(2.955083, 69.833333, 0), Vector(3.013066, 69.810961, 0), Vector(3.064518, 69.780578, 0), Vector(3.112167, 69.74643, 0), Vector(3.152665, 69.70323, 0), Vector(3.174633, 69.670465, 0), Vector(3.185764, 69.653863, 0)], [4, 1, 1, 1, 1, 1, 1, 1, 4], [0, 1.170016541, 2.263943595, 3.293731011, 4.273677885, 5.205400736, 6.126759273, 7.050839703, 8], False, 3, [1, 1, 1, 1, 1, 1, 1, 1, 1, 1, 1], False),  # 50
    Part.LineSegment(Vector(2.750651, 69.861111, 0), Vector(2.569444, 69.861111, 0)),  # 51
    Part.LineSegment(Vector(3.958333, 69.68533, 0), Vector(3.958333, 65.317925, 0)),  # 52
    Part.BSplineCurve([Vector(4.735243, 65.208333, 0), Vector(4.676596, 65.209623, 0), Vector(4.554627, 65.212304, 0), Vector(4.366166, 65.234232, 0), Vector(4.165587, 65.269202, 0), Vector(4.029075, 65.301295, 0), Vector(3.958333, 65.317925, 0)], [4, 1, 1, 1, 4], [0, 0.894670856, 1.860663297, 2.891378894, 4], False, 3, [1, 1, 1, 1, 1, 1, 1], False),  # 53
    Part.BSplineCurve([Vector(6.805556, 67.5, 0), Vector(6.804053, 67.413482, 0), Vector(6.801122, 67.2447, 0), Vector(6.773595, 66.99896, 0), Vector(6.728328, 66.767235, 0), Vector(6.664224, 66.549686, 0), Vector(6.582946, 66.345447, 0), Vector(6.48307, 66.155555, 0), Vector(6.36345, 65.980889, 0), Vector(6.228147, 65.820613, 0), Vector(6.078871, 65.676405, 0), Vector(5.917651, 65.550959, 0), Vector(5.745817, 65.445052, 0), Vector(5.564062, 65.357098, 0), Vector(5.370423, 65.29199, 0), Vector(5.168126, 65.242138, 0), Vector(4.954853, 65.214044, 0), Vector(4.809468, 65.210263, 0), Vector(4.735243, 65.208333, 0)], [4, 1, 1, 1, 1, 1, 1, 1, 1, 1, 1, 1, 1, 1, 1, 1, 4], [0, 1.193396302, 2.328127765, 3.406675227, 4.447298146, 5.452780722, 6.435033879, 7.401194227, 8.367973033, 9.324444072, 10.259799173, 11.180785527, 12.104889921, 13.03919269, 13.994204462, 14.975963072, 16], False, 3, [1, 1, 1, 1, 1, 1, 1, 1, 1, 1, 1, 1, 1, 1, 1, 1, 1, 1, 1], False),  # 54
    Part.BSplineCurve([Vector(4.765625, 69.791667, 0), Vector(4.837347, 69.789878, 0), Vector(4.978514, 69.786358, 0), Vector(5.185234, 69.755973, 0), Vector(5.383178, 69.708624, 0), Vector(5.57174, 69.641135, 0), Vector(5.750747, 69.553798, 0), Vector(5.919998, 69.446846, 0), Vector(6.078681, 69.319587, 0), Vector(6.228599, 69.176197, 0), Vector(6.363423, 69.014681, 0), Vector(6.482823, 68.839219, 0), Vector(6.582727, 68.649404, 0), Vector(6.664236, 68.446001, 0), Vector(6.728485, 68.22919, 0), Vector(6.773471, 67.998129, 0), Vector(6.801106, 67.753497, 0), Vector(6.804049, 67.585796, 0), Vector(6.805556, 67.5, 0)], [4, 1, 1, 1, 1, 1, 1, 1, 1, 1, 1, 1, 1, 1, 1, 1, 4], [0, 0.997996022, 1.964292496, 2.902202989, 3.827540679, 4.746320531, 5.669683403, 6.608607029, 7.573643287, 8.552931756, 9.531909504, 10.522958759, 11.532773866, 12.577887131, 13.666093008, 14.805981493, 16], False, 3, [1, 1, 1, 1, 1, 1, 1, 1, 1, 1, 1, 1, 1, 1, 1, 1, 1, 1, 1], False),  # 55
    Part.BSplineCurve([Vector(3.958333, 69.68533, 0), Vector(4.035222, 69.701726, 0), Vector(4.181921, 69.73301, 0), Vector(4.393973, 69.764556, 0), Vector(4.586085, 69.787636, 0), Vector(4.708058, 69.790374, 0), Vector(4.765625, 69.791667, 0)], [4, 1, 1, 1, 4], [0, 1.156263879, 2.206090244, 3.153339526, 4], False, 3, [1, 1, 1, 1, 1, 1, 1], False),  # 56
], False)
sketch3.addConstraint([
    Sketcher.Constraint("Block", 2),
    Sketcher.Constraint("Block", 3),
    Sketcher.Constraint("Block", 4),
    Sketcher.Constraint("Block", 5),
    Sketcher.Constraint("Block", 6),
    Sketcher.Constraint("Block", 7),
    Sketcher.Constraint("Block", 8),
    Sketcher.Constraint("Block", 9),
    Sketcher.Constraint("Block", 11),
    Sketcher.Constraint("Block", 12),
    Sketcher.Constraint("Block", 13),
    Sketcher.Constraint("Block", 14),
    Sketcher.Constraint("Block", 18),
    Sketcher.Constraint("Block", 19),
    Sketcher.Constraint("Block", 23),
    Sketcher.Constraint("Block", 27),
    Sketcher.Constraint("Block", 28),
    Sketcher.Constraint("Block", 32),
    Sketcher.Constraint("Block", 33),
    Sketcher.Constraint("Block", 40),
    Sketcher.Constraint("Block", 41),
    Sketcher.Constraint("Block", 42),
    Sketcher.Constraint("Block", 46),
    Sketcher.Constraint("Block", 47),
    Sketcher.Constraint("Block", 49),
    Sketcher.Constraint("Block", 50),
    Sketcher.Constraint("Block", 53),
    Sketcher.Constraint("Block", 54),
    Sketcher.Constraint("Block", 55),
    Sketcher.Constraint("Block", 56),
    Sketcher.Constraint("Coincident", 0, 2, 1, 1),
    Sketcher.Constraint("Coincident", 1, 2, 2, 2),
    Sketcher.Constraint("Coincident", 9, 1, 10, 1),
    Sketcher.Constraint("Coincident", 10, 2, 11, 2),
    Sketcher.Constraint("Coincident", 14, 1, 15, 1),
    Sketcher.Constraint("Coincident", 15, 2, 0, 1),
    Sketcher.Constraint("Coincident", 16, 2, 17, 1),
    Sketcher.Constraint("Coincident", 17, 2, 18, 2),
    Sketcher.Constraint("Coincident", 19, 1, 20, 1),
    Sketcher.Constraint("Coincident", 20, 2, 21, 1),
    Sketcher.Constraint("Coincident", 21, 2, 22, 1),
    Sketcher.Constraint("Coincident", 22, 2, 23, 2),
    Sketcher.Constraint("Coincident", 23, 1, 24, 1),
    Sketcher.Constraint("Coincident", 24, 2, 25, 1),
    Sketcher.Constraint("Coincident", 25, 2, 26, 1),
    Sketcher.Constraint("Coincident", 26, 2, 27, 2),
    Sketcher.Constraint("Coincident", 28, 1, 29, 1),
    Sketcher.Constraint("Coincident", 29, 2, 30, 1),
    Sketcher.Constraint("Coincident", 30, 2, 31, 1),
    Sketcher.Constraint("Coincident", 31, 2, 32, 2),
    Sketcher.Constraint("Coincident", 33, 1, 34, 1),
    Sketcher.Constraint("Coincident", 34, 2, 16, 1),
    Sketcher.Constraint("Coincident", 35, 2, 36, 1),
    Sketcher.Constraint("Coincident", 36, 2, 37, 1),
    Sketcher.Constraint("Coincident", 37, 2, 35, 1),
    Sketcher.Constraint("Coincident", 38, 2, 39, 1),
    Sketcher.Constraint("Coincident", 39, 2, 40, 2),
    Sketcher.Constraint("Coincident", 42, 1, 43, 1),
    Sketcher.Constraint("Coincident", 43, 2, 44, 1),
    Sketcher.Constraint("Coincident", 44, 2, 45, 1),
    Sketcher.Constraint("Coincident", 45, 2, 46, 2),
    Sketcher.Constraint("Coincident", 47, 1, 48, 1),
    Sketcher.Constraint("Coincident", 48, 2, 49, 2),
    Sketcher.Constraint("Coincident", 50, 1, 51, 1),
    Sketcher.Constraint("Coincident", 51, 2, 38, 1),
    Sketcher.Constraint("Coincident", 52, 2, 53, 2),
    Sketcher.Constraint("Coincident", 56, 1, 52, 1),
    Sketcher.Constraint("Horizontal", 1),
    Sketcher.Constraint("Horizontal", 15),
    Sketcher.Constraint("Horizontal", 16),
    Sketcher.Constraint("Vertical", 20),
    Sketcher.Constraint("Horizontal", 21),
    Sketcher.Constraint("Vertical", 22),
    Sketcher.Constraint("Horizontal", 25),
    Sketcher.Constraint("Vertical", 29),
    Sketcher.Constraint("Horizontal", 30),
    Sketcher.Constraint("Vertical", 31),
    Sketcher.Constraint("Horizontal", 35),
    Sketcher.Constraint("Vertical", 38),
    Sketcher.Constraint("Horizontal", 39),
    Sketcher.Constraint("Horizontal", 43),
    Sketcher.Constraint("Vertical", 44),
    Sketcher.Constraint("Horizontal", 45),
    Sketcher.Constraint("Horizontal", 51),
    Sketcher.Constraint("DistanceY", -1, 1, 20, 2, Q("70 mm")),
    Sketcher.Constraint("DistanceY", -1, 1, 29, 2, Q("70 mm")),
    Sketcher.Constraint("DistanceY", -1, 1, 35, 2, Q("68.125 mm")),
    Sketcher.Constraint("DistanceX", 1, 2, 1, 1, Q("0.138889 mm")),
    Sketcher.Constraint("DistanceX", 15, 1, 15, 2, Q("0.138889 mm")),
    Sketcher.Constraint("DistanceX", 25, 2, 25, 1, Q("0.136719 mm")),
    Sketcher.Constraint("DistanceX", 35, 2, 35, 1, Q("1.810981 mm")),
    Sketcher.Constraint("DistanceX", 39, 1, 39, 2, Q("2.249349 mm")),
    Sketcher.Constraint("DistanceX", 43, 2, 43, 1, Q("2.048611 mm")),
    Sketcher.Constraint("DistanceX", 16, 2, 21, 2, Q("1.896701 mm")),
    Sketcher.Constraint("DistanceX", 35, 2, 16, 2, Q("1.896701 mm")),
    Sketcher.Constraint("Distance", 37, Q("2.179772 mm")),
    Sketcher.Constraint("DistanceX", 16, 1, 16, 2, Q("1.993273 mm")),
    Sketcher.Constraint("DistanceX", 24, 2, -1, 1, Q("0.096571 mm")),
    Sketcher.Constraint("DistanceY", -1, 1, 36, 2, Q("66.117622 mm")),
    Sketcher.Constraint("DistanceY", 24, 2, 15, 2, Q("1.736111 mm")),
    Sketcher.Constraint("DistanceY", 36, 2, 16, 2, Q("2.215712 mm")),
])
pocket2 = body.newObject("PartDesign::Pocket", "Pocket001")
pocket2.Profile = sketch3
pocket2.Length = 1
pocket2.Reversed = True

doc.recompute()
